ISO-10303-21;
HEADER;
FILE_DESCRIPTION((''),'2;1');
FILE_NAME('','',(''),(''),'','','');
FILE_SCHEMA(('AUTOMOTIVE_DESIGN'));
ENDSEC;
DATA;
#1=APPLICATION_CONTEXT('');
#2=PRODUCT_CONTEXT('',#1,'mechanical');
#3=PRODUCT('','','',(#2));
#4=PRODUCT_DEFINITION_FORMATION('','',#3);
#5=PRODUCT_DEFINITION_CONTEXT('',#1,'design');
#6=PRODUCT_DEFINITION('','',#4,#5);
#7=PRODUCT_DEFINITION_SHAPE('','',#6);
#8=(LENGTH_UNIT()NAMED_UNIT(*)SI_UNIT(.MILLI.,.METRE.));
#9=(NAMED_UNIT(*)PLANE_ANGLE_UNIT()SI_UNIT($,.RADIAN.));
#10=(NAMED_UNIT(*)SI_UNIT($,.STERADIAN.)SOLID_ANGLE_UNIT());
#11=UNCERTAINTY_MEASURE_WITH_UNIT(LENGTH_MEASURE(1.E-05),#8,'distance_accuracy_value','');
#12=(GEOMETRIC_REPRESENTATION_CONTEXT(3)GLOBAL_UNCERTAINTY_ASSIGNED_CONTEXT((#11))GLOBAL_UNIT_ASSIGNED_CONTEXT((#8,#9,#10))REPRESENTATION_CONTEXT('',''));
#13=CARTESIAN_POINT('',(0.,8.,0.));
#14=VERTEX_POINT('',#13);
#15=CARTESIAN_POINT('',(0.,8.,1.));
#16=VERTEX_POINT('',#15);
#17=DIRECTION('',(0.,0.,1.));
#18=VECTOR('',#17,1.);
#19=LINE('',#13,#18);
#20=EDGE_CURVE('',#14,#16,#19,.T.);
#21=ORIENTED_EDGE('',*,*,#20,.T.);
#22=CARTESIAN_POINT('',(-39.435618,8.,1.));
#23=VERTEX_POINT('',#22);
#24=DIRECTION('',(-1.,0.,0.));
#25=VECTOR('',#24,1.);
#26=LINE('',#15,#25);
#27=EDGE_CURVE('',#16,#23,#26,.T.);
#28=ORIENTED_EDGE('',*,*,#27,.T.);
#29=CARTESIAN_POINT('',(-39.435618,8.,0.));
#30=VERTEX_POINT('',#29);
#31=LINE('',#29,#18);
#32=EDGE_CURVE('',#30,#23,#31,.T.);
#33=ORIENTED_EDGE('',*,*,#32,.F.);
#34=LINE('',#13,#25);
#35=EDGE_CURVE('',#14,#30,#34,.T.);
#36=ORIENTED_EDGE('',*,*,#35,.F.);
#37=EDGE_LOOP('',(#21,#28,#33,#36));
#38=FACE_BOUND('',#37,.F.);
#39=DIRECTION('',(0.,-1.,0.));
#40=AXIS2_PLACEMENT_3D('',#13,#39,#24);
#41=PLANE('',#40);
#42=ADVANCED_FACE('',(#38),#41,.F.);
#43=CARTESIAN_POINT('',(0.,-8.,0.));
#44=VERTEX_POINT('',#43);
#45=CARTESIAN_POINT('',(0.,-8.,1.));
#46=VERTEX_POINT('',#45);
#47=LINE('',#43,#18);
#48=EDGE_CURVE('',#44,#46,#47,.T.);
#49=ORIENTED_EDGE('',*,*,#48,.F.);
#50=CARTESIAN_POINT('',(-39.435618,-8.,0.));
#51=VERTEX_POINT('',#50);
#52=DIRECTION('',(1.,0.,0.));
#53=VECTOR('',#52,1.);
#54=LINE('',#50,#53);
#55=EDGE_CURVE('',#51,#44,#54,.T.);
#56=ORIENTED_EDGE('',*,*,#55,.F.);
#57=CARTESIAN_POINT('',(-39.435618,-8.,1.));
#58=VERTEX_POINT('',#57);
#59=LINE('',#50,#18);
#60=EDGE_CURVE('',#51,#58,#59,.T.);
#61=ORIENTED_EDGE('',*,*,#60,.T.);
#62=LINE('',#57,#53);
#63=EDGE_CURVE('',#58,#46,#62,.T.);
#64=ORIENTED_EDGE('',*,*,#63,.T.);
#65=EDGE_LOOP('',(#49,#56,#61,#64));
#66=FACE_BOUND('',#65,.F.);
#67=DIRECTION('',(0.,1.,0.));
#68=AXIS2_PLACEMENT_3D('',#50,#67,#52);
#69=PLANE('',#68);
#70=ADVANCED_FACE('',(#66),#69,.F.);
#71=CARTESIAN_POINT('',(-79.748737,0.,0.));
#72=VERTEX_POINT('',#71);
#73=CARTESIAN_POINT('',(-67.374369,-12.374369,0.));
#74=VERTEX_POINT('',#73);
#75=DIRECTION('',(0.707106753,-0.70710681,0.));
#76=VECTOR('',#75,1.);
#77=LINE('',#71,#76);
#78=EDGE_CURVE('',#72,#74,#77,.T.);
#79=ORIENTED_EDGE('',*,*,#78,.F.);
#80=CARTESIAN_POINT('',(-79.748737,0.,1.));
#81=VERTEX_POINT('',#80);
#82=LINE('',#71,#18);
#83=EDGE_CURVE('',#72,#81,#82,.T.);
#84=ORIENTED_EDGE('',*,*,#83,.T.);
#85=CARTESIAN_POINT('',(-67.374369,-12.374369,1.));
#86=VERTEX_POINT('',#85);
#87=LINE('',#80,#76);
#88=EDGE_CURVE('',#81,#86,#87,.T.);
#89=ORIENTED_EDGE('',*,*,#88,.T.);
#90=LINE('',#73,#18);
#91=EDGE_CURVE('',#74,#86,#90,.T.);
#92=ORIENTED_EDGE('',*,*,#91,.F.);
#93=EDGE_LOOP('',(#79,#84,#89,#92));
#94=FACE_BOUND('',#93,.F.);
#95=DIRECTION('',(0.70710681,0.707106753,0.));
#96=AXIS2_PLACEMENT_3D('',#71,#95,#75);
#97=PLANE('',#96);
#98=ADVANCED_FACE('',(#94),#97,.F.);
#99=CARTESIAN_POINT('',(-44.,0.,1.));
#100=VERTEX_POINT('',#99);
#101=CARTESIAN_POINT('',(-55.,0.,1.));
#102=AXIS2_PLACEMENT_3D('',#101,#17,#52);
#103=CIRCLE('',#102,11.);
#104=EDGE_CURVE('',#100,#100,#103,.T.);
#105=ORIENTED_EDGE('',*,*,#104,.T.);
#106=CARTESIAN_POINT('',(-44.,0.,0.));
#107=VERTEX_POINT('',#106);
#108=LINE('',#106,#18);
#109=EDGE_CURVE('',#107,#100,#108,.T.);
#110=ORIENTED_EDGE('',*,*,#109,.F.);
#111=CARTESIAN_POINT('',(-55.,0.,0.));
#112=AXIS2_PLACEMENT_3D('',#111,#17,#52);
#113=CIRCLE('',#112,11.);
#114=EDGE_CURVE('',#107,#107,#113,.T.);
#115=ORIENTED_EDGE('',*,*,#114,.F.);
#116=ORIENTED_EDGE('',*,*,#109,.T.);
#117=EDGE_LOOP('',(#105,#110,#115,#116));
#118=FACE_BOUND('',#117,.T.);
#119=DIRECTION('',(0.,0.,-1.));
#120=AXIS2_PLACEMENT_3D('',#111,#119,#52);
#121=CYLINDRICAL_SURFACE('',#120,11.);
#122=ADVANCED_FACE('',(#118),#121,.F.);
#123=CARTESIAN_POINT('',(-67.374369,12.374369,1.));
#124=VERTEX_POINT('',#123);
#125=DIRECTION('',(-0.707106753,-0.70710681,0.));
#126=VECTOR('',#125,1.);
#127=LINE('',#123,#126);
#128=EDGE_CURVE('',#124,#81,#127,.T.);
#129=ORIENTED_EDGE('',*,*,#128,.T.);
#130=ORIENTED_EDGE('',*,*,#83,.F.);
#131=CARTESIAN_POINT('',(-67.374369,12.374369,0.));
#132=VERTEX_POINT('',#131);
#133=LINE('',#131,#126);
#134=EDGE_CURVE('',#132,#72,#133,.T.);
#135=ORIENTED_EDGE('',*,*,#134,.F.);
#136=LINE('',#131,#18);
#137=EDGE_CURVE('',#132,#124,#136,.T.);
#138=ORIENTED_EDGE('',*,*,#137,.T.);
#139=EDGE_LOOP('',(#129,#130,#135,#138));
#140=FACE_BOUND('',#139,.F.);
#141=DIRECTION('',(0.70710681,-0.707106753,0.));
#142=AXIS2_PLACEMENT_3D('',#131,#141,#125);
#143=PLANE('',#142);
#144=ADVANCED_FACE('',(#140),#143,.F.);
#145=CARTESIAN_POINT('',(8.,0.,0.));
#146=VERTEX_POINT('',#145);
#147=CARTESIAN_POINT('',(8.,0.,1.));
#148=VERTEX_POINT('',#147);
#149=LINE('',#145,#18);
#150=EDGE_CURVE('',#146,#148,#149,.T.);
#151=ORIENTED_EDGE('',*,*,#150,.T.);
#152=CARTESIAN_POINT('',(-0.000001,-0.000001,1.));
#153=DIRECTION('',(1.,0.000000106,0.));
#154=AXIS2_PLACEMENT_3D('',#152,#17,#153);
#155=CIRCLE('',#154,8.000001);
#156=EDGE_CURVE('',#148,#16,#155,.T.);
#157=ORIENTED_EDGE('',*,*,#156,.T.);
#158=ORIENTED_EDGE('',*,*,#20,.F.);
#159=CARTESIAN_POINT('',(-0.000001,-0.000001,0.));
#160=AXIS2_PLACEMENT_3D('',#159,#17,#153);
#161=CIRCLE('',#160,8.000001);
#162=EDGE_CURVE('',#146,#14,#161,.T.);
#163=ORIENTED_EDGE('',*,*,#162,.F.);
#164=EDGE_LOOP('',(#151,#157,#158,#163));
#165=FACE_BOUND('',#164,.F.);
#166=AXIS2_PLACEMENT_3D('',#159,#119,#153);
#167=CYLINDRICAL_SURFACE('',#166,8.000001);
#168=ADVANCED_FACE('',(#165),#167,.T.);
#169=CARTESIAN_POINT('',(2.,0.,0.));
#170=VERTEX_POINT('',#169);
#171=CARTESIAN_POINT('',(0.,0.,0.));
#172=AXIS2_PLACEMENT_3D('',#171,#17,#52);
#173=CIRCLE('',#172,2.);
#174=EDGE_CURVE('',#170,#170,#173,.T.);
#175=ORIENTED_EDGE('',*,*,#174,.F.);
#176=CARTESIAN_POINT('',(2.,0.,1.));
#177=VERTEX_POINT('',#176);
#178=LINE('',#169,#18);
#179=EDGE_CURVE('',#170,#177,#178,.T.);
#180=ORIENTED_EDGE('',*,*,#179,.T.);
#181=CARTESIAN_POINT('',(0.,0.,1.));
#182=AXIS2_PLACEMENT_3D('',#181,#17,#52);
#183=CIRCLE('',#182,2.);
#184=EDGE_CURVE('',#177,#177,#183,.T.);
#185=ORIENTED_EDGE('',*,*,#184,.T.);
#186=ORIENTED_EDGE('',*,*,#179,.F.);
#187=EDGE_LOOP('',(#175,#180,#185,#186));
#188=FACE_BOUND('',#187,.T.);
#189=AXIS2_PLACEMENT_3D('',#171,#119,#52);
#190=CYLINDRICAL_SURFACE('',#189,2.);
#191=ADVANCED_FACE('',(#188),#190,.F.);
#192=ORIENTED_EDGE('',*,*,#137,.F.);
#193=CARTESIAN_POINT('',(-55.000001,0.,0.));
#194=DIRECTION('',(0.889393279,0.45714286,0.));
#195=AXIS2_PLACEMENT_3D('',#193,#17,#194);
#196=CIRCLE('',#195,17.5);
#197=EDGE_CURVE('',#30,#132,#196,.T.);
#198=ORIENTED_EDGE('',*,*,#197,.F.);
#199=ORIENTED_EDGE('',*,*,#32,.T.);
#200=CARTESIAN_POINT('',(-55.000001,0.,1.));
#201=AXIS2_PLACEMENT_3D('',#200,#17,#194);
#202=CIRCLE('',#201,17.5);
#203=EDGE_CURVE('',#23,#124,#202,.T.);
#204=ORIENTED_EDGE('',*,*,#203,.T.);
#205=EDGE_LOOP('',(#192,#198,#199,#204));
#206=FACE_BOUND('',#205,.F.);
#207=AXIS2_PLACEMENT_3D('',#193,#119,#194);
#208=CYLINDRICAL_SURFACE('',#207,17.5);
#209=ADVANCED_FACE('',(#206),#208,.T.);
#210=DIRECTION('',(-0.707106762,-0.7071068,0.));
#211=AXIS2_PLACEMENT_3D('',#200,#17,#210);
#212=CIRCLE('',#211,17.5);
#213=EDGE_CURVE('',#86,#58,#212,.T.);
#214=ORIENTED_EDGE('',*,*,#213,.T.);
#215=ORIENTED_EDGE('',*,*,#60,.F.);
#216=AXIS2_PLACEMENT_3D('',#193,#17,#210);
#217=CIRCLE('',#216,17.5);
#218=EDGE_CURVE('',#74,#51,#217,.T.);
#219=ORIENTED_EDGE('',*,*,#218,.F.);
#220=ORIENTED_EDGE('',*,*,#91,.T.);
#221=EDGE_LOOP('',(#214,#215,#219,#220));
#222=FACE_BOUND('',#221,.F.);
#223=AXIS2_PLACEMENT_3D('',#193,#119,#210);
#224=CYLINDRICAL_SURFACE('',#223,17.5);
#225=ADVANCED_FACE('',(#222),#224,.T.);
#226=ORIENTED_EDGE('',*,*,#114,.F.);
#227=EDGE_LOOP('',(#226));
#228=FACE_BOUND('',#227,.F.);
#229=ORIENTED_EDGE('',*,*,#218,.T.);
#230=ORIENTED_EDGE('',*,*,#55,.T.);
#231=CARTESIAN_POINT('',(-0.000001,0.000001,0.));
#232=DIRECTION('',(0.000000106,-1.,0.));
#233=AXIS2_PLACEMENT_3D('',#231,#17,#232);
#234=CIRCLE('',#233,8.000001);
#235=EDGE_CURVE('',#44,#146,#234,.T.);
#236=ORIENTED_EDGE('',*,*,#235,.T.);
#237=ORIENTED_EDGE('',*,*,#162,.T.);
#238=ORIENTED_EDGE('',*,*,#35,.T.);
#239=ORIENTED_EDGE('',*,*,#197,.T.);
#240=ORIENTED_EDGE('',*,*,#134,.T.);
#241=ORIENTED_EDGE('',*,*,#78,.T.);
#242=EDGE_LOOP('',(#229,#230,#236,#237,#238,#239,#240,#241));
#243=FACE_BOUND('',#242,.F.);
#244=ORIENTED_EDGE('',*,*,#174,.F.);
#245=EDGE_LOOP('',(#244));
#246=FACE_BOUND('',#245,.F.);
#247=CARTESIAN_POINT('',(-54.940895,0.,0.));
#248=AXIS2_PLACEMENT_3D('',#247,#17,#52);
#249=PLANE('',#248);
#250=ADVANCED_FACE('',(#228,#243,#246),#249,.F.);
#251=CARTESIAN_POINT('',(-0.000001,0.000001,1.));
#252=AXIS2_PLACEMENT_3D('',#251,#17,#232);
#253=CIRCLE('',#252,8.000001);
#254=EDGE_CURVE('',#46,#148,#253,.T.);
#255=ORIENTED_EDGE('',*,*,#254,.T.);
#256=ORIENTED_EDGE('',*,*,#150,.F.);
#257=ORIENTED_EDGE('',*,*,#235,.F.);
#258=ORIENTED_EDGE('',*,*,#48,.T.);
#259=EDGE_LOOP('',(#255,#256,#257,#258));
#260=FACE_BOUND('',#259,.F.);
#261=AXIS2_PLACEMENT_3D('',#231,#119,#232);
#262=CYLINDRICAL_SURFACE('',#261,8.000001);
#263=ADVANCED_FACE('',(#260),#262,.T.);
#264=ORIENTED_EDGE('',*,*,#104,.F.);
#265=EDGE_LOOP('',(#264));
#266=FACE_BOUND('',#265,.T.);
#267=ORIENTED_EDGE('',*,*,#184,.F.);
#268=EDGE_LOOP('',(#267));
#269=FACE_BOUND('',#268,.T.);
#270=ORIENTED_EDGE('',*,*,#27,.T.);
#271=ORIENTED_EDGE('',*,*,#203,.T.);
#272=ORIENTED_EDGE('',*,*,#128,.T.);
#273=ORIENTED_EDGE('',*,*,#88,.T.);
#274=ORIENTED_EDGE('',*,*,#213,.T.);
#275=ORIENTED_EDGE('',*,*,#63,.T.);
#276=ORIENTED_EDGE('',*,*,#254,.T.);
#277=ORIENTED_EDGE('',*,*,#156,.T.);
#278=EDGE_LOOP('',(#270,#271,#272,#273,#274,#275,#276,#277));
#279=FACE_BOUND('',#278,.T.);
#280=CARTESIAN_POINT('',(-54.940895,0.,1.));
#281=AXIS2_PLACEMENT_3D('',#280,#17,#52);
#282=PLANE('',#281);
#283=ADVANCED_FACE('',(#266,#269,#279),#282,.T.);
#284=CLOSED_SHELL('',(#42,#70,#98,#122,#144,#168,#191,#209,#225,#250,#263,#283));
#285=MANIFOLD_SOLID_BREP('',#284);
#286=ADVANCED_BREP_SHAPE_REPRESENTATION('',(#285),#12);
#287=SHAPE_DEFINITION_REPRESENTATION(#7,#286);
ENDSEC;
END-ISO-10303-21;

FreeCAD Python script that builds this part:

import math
import FreeCAD as App
import Part
import Sketcher

V = App.Vector

doc = App.newDocument("Part")
body = doc.addObject("PartDesign::Body", "Body")

# Sketch on XY plane
sketch1 = doc.addObject("Sketcher::SketchObject", "Sketch")
body.addObject(sketch1)
sketch1.AttachmentSupport = (doc.XY_Plane, [""])
sketch1.MapMode = "FlatFace"
sketch1.addGeometry(Part.ArcOfCircle(Part.Circle(V(-55, 0, 0), V(0, 0, 1), 17.5), math.radians(27), math.radians(135)), False)
sketch1.addGeometry(Part.LineSegment(V(-67.4, 12.4, 0), V(-79.7, 0, 0)), False)
sketch1.addGeometry(Part.LineSegment(V(-79.7, 0, 0), V(-67.4, -12.4, 0)), False)
sketch1.addGeometry(Part.ArcOfCircle(Part.Circle(V(-55, 0, 0), V(0, 0, 1), 17.5), math.radians(-135), math.radians(-27)), False)
sketch1.addGeometry(Part.LineSegment(V(-39.4, -8, 0), V(0, -8, 0)), False)
sketch1.addGeometry(Part.ArcOfCircle(Part.Circle(V(0, 0, 0), V(0, 0, 1), 8), math.radians(-90), math.radians(0)), False)
sketch1.addGeometry(Part.ArcOfCircle(Part.Circle(V(0, 0, 0), V(0, 0, 1), 8), math.radians(0), math.radians(90)), False)
sketch1.addGeometry(Part.LineSegment(V(0, 8, 0), V(-39.4, 8, 0)), False)
sketch1.addGeometry(Part.Circle(V(-55, 0, 0), V(0, 0, 1), 11), False)
sketch1.addGeometry(Part.Circle(V(0, 0, 0), V(0, 0, 1), 2), False)
sketch1.addConstraint(Sketcher.Constraint("Tangent", 0, 2, 1, 1))
sketch1.addConstraint(Sketcher.Constraint("Coincident", 1, 2, 2, 1))
sketch1.addConstraint(Sketcher.Constraint("Tangent", 2, 2, 3, 1))
sketch1.addConstraint(Sketcher.Constraint("Coincident", 3, 2, 4, 1))
sketch1.addConstraint(Sketcher.Constraint("Tangent", 4, 2, 5, 1))
sketch1.addConstraint(Sketcher.Constraint("Tangent", 5, 2, 6, 1))
sketch1.addConstraint(Sketcher.Constraint("Tangent", 6, 2, 7, 1))
sketch1.addConstraint(Sketcher.Constraint("Coincident", 7, 2, 0, 1))
sketch1.addConstraint(Sketcher.Constraint("Horizontal", 4))
sketch1.addConstraint(Sketcher.Constraint("Horizontal", 7))
sketch1.addConstraint(Sketcher.Constraint("Coincident", 5, 3, -1, 1))
sketch1.addConstraint(Sketcher.Constraint("Coincident", 9, 3, -1, 1))
sketch1.addConstraint(Sketcher.Constraint("Coincident", 3, 3, 0, 3))
sketch1.addConstraint(Sketcher.Constraint("Coincident", 8, 3, 0, 3))
sketch1.addConstraint(Sketcher.Constraint("Equal", 0, 3))
sketch1.addConstraint(Sketcher.Constraint("Equal", 5, 6))
sketch1.addConstraint(Sketcher.Constraint("Symmetric", 0, 2, 2, 2, -1))
sketch1.addConstraint(Sketcher.Constraint("PointOnObject", 5, 2, -1))
sketch1.addConstraint(Sketcher.Constraint("Perpendicular", 1, 2))
sketch1.addConstraint(Sketcher.Constraint("Diameter", 8, 22.0))
sketch1.addConstraint(Sketcher.Constraint("Diameter", 9, 4.0))
sketch1.addConstraint(Sketcher.Constraint("Radius", 5, 8.000001))
sketch1.addConstraint(Sketcher.Constraint("Radius", 0, 17.5))
sketch1.addConstraint(Sketcher.Constraint("DistanceX", 0, 3, -1, 1, 55.000001))
pad1 = doc.addObject("PartDesign::Pad", "Pad")
body.addObject(pad1)
pad1.Profile = sketch1
pad1.Length = 1

doc.recompute()
